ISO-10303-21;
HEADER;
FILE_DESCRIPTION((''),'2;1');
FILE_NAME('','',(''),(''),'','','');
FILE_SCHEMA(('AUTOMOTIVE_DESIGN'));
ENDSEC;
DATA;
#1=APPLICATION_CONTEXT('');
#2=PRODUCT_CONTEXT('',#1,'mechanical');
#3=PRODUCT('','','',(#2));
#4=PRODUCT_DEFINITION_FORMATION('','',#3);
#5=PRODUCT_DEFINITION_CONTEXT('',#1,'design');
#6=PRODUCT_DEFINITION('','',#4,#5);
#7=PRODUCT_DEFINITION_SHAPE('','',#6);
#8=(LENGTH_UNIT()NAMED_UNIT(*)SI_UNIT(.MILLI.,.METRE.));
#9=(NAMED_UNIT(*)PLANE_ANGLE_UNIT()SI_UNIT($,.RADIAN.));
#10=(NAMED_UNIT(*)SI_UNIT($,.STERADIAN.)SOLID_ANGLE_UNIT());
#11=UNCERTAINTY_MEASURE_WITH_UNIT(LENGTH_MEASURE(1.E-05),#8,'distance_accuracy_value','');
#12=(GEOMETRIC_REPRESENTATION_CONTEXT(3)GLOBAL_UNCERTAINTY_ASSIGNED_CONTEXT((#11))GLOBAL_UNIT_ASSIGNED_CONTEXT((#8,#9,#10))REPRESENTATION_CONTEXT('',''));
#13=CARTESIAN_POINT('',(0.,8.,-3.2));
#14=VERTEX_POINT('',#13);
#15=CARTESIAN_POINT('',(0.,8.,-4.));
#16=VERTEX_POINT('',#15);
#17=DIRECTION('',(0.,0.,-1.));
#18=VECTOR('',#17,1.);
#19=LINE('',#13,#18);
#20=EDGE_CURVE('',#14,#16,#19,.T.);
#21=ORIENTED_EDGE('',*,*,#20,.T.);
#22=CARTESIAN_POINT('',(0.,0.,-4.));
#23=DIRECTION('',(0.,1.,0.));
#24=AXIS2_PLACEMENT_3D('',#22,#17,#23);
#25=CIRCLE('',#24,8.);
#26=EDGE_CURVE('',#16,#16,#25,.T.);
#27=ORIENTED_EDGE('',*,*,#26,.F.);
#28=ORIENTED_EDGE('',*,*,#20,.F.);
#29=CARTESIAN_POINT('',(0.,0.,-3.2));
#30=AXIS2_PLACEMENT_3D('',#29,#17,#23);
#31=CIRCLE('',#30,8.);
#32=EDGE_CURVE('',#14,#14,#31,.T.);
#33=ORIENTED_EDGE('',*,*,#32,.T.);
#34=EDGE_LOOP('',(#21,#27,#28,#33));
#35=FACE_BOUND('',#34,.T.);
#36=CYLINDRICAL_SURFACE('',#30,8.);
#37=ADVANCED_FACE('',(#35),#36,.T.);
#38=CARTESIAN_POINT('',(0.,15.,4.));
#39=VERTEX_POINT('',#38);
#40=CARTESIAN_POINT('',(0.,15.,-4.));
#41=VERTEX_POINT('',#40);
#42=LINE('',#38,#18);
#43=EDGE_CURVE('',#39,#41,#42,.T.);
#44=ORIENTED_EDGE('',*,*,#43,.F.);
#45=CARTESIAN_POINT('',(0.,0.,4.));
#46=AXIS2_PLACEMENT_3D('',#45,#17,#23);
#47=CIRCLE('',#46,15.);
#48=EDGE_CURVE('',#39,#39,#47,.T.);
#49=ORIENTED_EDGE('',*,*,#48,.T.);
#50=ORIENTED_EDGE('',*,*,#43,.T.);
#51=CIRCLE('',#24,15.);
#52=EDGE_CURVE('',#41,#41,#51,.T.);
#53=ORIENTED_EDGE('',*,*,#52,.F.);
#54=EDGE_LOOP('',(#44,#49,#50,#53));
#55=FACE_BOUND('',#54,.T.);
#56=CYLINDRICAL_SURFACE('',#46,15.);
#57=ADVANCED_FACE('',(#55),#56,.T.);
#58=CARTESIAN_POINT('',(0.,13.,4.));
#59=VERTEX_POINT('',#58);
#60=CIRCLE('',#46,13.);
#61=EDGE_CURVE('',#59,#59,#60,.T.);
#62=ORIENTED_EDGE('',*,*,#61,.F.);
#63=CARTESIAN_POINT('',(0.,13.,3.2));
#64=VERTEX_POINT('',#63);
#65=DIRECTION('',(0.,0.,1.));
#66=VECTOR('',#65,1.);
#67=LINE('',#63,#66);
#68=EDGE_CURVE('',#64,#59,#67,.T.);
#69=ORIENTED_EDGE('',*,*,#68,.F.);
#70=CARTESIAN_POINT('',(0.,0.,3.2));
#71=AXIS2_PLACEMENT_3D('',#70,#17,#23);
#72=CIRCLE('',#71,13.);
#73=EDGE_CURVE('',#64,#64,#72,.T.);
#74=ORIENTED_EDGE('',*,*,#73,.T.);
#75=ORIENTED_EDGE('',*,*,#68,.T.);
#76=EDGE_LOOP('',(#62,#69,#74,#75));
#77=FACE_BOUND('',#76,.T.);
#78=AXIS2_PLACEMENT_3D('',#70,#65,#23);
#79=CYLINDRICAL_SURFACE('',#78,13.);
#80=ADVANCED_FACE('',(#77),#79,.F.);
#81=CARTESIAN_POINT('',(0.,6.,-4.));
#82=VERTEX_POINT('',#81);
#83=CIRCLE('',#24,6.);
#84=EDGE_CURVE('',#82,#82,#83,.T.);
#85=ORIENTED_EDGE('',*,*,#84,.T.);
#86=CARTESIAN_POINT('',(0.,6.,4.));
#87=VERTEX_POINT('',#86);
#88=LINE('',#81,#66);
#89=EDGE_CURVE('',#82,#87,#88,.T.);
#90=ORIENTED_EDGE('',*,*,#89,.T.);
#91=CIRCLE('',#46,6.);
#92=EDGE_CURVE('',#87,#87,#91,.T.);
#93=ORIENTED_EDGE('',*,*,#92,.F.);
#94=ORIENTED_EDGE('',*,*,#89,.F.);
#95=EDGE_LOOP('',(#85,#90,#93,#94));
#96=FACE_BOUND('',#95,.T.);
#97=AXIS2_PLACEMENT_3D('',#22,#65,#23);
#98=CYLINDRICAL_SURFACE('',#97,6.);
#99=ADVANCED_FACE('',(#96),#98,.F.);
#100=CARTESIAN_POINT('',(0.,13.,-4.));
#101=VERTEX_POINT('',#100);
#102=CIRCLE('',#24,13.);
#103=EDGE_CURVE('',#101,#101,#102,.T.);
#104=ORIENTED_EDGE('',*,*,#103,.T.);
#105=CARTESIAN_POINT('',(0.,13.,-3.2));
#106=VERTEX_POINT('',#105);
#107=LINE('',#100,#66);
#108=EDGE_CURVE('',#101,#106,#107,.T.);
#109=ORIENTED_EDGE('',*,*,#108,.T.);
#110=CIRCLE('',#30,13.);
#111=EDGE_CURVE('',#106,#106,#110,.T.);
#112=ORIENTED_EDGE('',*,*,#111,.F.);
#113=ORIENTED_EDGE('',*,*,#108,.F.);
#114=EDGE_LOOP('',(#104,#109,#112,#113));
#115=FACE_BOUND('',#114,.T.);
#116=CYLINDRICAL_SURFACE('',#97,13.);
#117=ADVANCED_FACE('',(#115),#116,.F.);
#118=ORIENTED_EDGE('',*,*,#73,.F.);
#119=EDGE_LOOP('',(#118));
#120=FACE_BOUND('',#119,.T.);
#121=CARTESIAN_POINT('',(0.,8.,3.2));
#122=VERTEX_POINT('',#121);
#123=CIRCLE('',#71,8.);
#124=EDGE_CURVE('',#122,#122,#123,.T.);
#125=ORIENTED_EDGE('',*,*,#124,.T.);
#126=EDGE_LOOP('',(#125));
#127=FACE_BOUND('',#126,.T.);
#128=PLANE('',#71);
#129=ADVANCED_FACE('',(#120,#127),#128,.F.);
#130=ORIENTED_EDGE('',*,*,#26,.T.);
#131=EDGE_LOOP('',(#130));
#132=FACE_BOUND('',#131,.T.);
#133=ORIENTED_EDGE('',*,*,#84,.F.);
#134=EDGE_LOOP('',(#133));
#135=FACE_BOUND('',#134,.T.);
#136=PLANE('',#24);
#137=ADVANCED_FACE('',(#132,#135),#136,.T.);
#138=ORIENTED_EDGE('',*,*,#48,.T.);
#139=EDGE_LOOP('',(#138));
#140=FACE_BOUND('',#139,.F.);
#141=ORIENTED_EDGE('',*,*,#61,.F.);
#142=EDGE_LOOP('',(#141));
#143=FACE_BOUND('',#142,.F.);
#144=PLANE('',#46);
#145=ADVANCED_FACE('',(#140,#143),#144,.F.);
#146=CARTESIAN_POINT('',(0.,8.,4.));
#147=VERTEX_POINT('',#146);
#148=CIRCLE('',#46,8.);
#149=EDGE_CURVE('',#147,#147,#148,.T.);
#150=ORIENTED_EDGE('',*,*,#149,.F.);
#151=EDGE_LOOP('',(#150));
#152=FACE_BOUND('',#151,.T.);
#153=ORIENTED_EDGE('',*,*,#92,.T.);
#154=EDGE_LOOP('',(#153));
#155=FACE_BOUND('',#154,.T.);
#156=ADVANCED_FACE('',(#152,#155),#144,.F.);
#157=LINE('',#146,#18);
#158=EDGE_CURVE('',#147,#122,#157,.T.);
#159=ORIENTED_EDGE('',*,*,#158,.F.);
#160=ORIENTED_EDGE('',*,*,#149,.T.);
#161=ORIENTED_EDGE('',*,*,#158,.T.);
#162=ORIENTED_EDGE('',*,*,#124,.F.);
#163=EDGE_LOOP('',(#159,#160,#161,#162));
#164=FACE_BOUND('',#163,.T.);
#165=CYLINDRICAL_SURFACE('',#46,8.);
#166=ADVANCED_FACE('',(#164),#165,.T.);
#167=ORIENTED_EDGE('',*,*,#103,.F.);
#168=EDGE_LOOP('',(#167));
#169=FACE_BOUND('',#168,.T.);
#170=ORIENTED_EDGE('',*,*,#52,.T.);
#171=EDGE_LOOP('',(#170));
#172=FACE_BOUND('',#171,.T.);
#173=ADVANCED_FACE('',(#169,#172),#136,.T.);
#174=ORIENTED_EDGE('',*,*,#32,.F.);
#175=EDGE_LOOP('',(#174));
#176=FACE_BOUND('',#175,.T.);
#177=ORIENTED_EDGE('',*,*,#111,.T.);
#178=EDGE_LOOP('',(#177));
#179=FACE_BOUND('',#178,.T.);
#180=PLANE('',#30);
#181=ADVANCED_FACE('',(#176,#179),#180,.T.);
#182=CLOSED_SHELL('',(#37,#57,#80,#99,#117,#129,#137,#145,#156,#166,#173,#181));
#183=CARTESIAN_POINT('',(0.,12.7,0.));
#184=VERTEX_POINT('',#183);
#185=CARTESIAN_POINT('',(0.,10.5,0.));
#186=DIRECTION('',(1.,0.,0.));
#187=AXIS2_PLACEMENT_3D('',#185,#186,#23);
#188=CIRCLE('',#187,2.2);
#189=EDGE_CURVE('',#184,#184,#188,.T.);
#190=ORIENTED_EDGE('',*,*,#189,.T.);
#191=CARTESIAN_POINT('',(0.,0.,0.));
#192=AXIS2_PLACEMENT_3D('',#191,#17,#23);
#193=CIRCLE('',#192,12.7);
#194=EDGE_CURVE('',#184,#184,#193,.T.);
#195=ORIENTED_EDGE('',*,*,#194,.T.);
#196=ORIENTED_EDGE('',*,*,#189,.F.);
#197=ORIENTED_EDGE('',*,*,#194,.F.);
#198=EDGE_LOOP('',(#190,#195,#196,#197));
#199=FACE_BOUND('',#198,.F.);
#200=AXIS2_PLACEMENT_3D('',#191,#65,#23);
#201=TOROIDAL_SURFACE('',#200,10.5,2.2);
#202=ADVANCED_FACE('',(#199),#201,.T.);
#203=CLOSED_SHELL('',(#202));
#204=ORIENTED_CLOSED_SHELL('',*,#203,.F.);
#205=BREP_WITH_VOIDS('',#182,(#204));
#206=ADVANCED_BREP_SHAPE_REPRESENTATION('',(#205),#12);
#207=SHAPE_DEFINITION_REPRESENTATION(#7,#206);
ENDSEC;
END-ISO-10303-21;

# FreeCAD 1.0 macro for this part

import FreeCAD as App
import Part
import Sketcher
from FreeCAD import Vector
Q = App.Units.Quantity


def add_polygon(sketch, points):
    """Adds a closed chain of lines whose ends are joined by coincident constraints."""
    first, n = sketch.GeometryCount, len(points)
    for a, b in zip(points, points[1:] + points[:1]):
        sketch.addGeometry(Part.LineSegment(App.Vector(*a, 0), App.Vector(*b, 0)), False)
    for i in range(n):
        sketch.addConstraint(Sketcher.Constraint("Coincident", first + i, 2, first + (i + 1) % n, 1))

doc = App.newDocument("Part")
params = doc.addObject("Spreadsheet::Sheet", "Params")
for row, (alias, value) in enumerate([
    ("sketch1_width", "2 mm"),
    ("sketch1_height", "8 mm"),
    ("sketch1_height2", "0.8 mm"),
    ("sketch1_diameter", "4.4 mm"),
    ("sketch1_width2", "5 mm"),
    ("revolution_angle", "360 deg"),
], start=1):
    params.set(f"A{row}", alias)
    params.set(f"B{row}", "=" + value)
    params.setAlias(f"B{row}", alias)

body = doc.addObject("PartDesign::Body", "Body")

# Sketch on YZ plane
sketch1 = body.newObject("Sketcher::SketchObject", "Sketch")
sketch1.AttachmentSupport = (doc.getObject("YZ_Plane"), [""])
sketch1.MapMode = "FlatFace"
add_polygon(sketch1, [(15, -4), (15, 4), (13, 4), (13, 3.2), (8, 3.2), (8, 4), (6, 4), (6, -4), (8, -4), (8, -3.2), (13, -3.2), (13, -4)])  # lines 0-11
sketch1.addGeometry(Part.Circle(Vector(10.5, 0, 0), Vector(0, 0, 1), 2.2), False)  # 12
sketch1.addConstraint([
    Sketcher.Constraint("Vertical", 0),
    Sketcher.Constraint("Horizontal", 1),
    Sketcher.Constraint("Vertical", 2),
    Sketcher.Constraint("Horizontal", 3),
    Sketcher.Constraint("Vertical", 4),
    Sketcher.Constraint("Horizontal", 5),
    Sketcher.Constraint("Vertical", 6),
    Sketcher.Constraint("Horizontal", 7),
    Sketcher.Constraint("Vertical", 8),
    Sketcher.Constraint("Horizontal", 9),
    Sketcher.Constraint("Vertical", 10),
    Sketcher.Constraint("Horizontal", 11),
    Sketcher.Constraint("Symmetric", 4, 2, 7, 2, -1),
    Sketcher.Constraint("Symmetric", 2, 2, 9, 2, -1),
    Sketcher.Constraint("PointOnObject", 12, 3, -1),
    Sketcher.Constraint("Horizontal", 1, 2, 4, 2),
    Sketcher.Constraint("Horizontal", 7, 2, 10, 2),
    Sketcher.Constraint("Equal", 1, 5),
    Sketcher.Constraint("DistanceX", 1, 2, 1, 1, Q("2 mm")),
    Sketcher.Constraint("DistanceY", 0, 1, 0, 2, Q("8 mm")),
    Sketcher.Constraint("DistanceY", 2, 2, 2, 1, Q("0.8 mm")),
    Sketcher.Constraint("DistanceX", -1, 1, 3, 2, Q("8 mm")),
    Sketcher.Constraint("Diameter", 12, Q("4.4 mm")),
    Sketcher.Constraint("DistanceX", 3, 2, 3, 1, Q("5 mm")),
    Sketcher.Constraint("DistanceX", -1, 1, 12, 3, Q("10.5 mm")),
])
sketch1.setExpression("Constraints[30]", "Params.sketch1_width")
sketch1.setExpression("Constraints[31]", "Params.sketch1_height")
sketch1.setExpression("Constraints[32]", "Params.sketch1_height2")
sketch1.setExpression("Constraints[34]", "Params.sketch1_diameter")
sketch1.setExpression("Constraints[35]", "Params.sketch1_width2")
revolution = body.newObject("PartDesign::Revolution", "Revolution")
revolution.Profile = sketch1
revolution.ReferenceAxis = (sketch1, ["V_Axis"])
revolution.setExpression("Angle", "Params.revolution_angle")

doc.recompute()
